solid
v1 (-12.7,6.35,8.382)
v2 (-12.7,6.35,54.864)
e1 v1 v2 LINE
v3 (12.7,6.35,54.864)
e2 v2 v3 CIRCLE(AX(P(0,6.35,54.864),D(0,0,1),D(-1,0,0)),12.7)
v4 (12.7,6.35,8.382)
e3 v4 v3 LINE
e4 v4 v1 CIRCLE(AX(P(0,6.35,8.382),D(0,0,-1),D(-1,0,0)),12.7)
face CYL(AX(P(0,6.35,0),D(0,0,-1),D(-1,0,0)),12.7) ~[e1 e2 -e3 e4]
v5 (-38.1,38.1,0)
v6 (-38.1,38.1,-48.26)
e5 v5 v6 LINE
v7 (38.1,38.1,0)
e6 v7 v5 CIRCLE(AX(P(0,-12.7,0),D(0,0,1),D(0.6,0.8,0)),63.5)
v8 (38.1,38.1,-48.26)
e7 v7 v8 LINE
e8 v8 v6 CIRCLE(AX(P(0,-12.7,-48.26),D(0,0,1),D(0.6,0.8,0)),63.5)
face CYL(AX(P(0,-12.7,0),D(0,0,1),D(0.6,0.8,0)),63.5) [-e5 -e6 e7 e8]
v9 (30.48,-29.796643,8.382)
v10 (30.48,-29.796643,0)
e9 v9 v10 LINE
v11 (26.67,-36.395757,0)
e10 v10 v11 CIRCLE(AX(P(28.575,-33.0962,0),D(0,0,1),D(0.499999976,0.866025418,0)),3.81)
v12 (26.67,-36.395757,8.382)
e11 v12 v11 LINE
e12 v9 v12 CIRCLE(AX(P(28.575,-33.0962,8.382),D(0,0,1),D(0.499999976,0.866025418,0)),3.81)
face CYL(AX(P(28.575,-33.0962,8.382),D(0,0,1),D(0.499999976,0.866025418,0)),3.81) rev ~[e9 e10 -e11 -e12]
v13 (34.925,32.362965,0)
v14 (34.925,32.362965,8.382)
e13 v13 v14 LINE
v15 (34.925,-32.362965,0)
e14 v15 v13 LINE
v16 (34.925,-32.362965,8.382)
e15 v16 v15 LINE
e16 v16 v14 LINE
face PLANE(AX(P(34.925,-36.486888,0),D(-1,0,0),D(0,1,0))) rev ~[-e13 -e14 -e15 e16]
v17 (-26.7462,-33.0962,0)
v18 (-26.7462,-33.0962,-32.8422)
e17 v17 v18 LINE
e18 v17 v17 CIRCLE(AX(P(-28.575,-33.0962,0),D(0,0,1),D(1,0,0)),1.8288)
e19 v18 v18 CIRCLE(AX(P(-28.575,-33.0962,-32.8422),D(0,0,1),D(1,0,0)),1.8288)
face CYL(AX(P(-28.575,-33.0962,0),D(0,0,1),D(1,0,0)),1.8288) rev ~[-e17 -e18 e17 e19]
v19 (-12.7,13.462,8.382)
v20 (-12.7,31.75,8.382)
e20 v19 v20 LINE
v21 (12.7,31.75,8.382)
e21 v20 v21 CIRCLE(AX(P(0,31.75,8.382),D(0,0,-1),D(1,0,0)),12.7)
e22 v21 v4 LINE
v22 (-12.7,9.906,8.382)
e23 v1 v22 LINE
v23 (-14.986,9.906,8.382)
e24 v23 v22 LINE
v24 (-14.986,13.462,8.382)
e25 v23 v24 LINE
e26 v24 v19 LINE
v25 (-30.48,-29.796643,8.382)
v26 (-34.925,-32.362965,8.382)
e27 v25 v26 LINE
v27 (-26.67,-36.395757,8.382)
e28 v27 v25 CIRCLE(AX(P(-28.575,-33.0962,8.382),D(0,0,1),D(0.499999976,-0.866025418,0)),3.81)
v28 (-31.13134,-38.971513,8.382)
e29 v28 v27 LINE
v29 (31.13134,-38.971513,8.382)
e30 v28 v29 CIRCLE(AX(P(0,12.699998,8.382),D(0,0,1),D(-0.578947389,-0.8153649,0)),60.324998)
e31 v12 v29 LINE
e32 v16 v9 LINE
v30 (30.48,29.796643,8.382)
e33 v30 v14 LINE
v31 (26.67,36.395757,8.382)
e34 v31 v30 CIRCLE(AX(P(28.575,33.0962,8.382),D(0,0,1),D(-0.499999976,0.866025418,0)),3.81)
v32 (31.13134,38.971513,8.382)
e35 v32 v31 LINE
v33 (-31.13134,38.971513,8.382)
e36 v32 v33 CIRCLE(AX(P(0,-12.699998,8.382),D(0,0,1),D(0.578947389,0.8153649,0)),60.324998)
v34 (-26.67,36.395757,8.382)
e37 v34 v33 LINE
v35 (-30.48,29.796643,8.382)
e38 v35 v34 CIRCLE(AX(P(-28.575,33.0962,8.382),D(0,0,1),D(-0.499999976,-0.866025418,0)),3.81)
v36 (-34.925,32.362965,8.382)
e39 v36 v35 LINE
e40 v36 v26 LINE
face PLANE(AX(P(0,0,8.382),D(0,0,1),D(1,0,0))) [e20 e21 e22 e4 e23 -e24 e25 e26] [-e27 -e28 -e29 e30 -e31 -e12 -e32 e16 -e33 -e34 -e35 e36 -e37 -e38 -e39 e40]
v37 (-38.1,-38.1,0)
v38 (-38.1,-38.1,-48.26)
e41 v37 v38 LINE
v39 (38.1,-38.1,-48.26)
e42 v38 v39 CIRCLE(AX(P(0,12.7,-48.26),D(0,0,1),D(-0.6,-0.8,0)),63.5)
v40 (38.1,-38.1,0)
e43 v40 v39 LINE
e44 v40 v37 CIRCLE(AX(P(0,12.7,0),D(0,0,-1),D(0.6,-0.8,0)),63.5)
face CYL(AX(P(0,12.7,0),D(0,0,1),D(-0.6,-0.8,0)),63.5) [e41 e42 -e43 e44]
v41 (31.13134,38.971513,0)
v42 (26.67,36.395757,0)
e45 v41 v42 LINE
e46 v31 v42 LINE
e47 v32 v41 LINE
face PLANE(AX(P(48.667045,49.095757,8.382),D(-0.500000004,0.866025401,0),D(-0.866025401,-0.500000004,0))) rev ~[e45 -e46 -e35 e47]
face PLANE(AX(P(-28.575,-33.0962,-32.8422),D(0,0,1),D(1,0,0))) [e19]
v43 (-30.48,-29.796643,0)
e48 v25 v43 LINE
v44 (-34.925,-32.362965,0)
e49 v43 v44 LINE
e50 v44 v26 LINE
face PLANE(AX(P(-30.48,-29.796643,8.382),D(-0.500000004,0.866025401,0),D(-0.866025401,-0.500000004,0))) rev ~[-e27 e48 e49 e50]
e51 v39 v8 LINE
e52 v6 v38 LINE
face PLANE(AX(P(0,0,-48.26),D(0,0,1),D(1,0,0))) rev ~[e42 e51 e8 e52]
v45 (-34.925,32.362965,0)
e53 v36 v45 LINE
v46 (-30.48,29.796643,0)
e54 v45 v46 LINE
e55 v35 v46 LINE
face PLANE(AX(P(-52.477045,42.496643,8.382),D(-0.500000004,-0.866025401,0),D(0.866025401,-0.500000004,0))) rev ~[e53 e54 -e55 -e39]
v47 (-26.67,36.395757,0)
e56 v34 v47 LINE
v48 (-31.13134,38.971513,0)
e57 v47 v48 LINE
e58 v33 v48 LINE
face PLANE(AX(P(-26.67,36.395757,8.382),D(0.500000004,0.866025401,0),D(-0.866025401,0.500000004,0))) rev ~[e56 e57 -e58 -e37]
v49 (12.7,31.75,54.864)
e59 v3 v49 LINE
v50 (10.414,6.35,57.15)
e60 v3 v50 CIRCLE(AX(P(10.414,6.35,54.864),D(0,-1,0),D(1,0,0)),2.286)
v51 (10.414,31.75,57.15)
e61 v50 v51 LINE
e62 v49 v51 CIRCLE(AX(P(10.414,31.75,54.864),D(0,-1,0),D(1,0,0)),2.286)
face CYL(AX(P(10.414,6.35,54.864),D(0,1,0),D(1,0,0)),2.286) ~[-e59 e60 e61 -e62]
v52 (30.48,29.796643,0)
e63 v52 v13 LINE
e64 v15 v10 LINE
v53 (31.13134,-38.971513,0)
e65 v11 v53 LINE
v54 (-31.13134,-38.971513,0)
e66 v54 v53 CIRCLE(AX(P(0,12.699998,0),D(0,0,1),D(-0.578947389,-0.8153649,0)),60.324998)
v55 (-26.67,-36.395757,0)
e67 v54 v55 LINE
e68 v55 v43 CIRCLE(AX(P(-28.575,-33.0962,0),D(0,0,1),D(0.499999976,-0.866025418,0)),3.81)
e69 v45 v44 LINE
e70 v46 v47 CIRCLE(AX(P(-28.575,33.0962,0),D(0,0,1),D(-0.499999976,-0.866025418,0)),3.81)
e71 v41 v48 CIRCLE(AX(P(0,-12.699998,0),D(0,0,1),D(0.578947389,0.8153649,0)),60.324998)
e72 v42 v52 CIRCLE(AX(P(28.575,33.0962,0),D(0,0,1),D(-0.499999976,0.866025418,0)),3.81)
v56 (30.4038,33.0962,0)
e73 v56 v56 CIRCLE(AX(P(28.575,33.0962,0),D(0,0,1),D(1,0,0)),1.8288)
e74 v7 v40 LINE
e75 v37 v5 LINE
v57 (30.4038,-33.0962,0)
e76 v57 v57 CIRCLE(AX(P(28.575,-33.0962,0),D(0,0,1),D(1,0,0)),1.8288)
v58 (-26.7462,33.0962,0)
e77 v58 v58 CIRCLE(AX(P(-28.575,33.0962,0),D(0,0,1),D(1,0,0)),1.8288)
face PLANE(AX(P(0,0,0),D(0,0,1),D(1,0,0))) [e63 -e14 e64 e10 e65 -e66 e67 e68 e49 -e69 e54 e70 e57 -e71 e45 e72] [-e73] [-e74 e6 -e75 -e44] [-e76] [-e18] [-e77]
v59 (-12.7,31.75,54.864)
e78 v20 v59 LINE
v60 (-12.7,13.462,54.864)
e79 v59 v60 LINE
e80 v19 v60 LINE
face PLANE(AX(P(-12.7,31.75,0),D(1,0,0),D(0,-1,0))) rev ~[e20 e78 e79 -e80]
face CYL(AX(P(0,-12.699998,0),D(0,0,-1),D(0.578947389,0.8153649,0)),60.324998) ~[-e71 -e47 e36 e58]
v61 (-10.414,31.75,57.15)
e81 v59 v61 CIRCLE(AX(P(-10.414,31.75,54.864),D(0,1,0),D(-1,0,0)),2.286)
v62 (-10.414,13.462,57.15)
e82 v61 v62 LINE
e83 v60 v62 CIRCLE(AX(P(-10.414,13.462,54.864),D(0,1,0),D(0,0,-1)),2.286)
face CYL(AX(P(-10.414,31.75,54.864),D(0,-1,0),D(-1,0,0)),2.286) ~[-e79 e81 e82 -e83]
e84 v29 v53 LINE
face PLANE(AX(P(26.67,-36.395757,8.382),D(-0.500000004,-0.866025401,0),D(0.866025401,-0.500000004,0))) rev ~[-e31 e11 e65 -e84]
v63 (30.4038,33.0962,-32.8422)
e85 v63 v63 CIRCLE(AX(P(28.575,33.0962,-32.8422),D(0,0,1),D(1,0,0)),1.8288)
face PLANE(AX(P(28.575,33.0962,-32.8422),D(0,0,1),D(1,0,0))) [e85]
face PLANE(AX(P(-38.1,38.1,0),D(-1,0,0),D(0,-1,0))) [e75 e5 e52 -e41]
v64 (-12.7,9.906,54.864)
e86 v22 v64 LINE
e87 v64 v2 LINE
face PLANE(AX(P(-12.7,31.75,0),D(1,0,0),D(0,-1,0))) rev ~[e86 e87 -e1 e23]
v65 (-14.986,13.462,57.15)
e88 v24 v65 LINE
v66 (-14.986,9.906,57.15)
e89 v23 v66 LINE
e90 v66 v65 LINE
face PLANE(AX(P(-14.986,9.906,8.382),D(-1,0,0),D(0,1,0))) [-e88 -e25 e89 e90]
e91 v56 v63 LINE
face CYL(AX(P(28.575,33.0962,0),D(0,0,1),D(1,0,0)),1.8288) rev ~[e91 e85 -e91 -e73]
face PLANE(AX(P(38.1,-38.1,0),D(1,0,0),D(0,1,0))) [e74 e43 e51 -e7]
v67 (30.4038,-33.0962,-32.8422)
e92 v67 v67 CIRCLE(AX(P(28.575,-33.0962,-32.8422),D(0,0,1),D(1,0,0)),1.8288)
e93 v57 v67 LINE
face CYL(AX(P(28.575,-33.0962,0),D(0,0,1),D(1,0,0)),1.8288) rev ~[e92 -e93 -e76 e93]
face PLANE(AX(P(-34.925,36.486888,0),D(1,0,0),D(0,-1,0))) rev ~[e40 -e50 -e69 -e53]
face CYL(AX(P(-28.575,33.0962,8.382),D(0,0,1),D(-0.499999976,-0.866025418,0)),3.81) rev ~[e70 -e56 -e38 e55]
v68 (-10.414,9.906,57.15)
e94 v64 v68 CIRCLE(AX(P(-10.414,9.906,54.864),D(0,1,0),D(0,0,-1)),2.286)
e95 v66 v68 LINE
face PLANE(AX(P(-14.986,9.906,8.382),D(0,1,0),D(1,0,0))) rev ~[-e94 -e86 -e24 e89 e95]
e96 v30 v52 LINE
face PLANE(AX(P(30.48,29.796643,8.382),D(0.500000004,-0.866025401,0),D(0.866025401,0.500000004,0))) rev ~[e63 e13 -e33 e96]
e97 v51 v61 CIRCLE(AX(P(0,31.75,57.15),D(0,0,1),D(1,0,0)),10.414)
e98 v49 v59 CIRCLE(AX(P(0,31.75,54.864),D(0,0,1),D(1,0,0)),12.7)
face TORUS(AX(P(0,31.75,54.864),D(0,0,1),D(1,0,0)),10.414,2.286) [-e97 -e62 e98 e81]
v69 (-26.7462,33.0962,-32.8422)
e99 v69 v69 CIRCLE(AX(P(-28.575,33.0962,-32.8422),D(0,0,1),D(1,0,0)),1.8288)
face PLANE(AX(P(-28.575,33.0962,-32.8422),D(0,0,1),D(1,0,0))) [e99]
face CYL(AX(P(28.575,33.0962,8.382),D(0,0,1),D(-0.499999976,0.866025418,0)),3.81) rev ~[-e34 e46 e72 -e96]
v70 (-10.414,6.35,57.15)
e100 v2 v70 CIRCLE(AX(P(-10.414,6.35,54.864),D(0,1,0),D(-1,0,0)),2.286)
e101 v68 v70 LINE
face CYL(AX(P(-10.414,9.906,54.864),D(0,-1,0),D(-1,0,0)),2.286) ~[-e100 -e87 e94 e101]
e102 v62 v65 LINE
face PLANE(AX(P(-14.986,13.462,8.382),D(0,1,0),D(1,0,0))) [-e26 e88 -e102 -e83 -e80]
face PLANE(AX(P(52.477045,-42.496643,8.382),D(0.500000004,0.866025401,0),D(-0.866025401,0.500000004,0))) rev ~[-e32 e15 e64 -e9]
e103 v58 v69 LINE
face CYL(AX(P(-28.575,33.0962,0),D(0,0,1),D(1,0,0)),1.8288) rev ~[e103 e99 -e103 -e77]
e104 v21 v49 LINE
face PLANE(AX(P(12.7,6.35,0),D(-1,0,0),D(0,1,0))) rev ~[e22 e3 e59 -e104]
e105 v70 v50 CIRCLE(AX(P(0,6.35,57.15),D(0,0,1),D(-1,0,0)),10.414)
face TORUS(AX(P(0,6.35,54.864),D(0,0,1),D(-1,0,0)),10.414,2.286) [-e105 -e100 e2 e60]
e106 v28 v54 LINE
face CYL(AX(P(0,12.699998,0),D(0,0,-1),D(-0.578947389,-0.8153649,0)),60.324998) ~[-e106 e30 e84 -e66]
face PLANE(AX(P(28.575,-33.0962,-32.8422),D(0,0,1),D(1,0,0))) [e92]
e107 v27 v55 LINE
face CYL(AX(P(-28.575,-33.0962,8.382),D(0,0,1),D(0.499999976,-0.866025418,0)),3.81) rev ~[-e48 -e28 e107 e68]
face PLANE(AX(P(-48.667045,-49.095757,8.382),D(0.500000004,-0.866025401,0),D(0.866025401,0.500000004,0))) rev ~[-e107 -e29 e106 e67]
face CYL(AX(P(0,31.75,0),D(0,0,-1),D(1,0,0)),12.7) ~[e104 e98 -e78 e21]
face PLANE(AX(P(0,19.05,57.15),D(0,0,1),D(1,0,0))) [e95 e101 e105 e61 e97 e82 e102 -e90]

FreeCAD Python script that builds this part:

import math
import FreeCAD as App
import Part
import Sketcher

V = App.Vector
Q = App.Units.Quantity


def edges_at(feature, points):
    """Names of the edges that pass closest to the given points."""
    edges = feature.Shape.Edges
    near = lambda p: min(range(len(edges)), key=lambda i: edges[i].distToShape(Part.Vertex(*p))[0])
    return sorted({f"Edge{near(p) + 1}" for p in points})

doc = App.newDocument("Part")
body = doc.addObject("PartDesign::Body", "Body")

sketch1 = body.newObject("Sketcher::SketchObject", "Sketch")
sketch1.AttachmentSupport = (doc.getObject("XY_Plane"), [""])
sketch1.MapMode = "FlatFace"
sketch1.addGeometry([
    Part.ArcOfCircle(Part.Circle(V(0, 13, 0), V(0, 0, 1), 64), math.radians(-127), math.radians(-53)),
    Part.LineSegment(V(38, -38, 0), V(38, 38, 0)),
    Part.ArcOfCircle(Part.Circle(V(0, -13, 0), V(0, 0, 1), 64), math.radians(53), math.radians(127)),
    Part.LineSegment(V(-38, 38, 0), V(-38, -38, 0)),
], False)
sketch1.addConstraint([
    Sketcher.Constraint("Coincident", 0, 2, 1, 1),
    Sketcher.Constraint("Coincident", 1, 2, 2, 1),
    Sketcher.Constraint("Coincident", 2, 2, 3, 1),
    Sketcher.Constraint("Coincident", 3, 2, 0, 1),
    Sketcher.Constraint("Vertical", 1),
    Sketcher.Constraint("Vertical", 3),
    Sketcher.Constraint("Equal", 0, 2),
    Sketcher.Constraint("Symmetric", 0, 3, 2, 3, -1, 1),
    Sketcher.Constraint("Symmetric", 1, 2, 2, 2, -2),
    Sketcher.Constraint("Radius", 0, Q("2.5 in")),
    Sketcher.Constraint("DistanceY", 1, 1, 1, 2, Q("3 in")),
    Sketcher.Constraint("DistanceY", 2, 3, 0, 3, Q("1 in")),
])
pad1 = body.newObject("PartDesign::Pad", "Pad")
pad1.Profile = sketch1
pad1.Length = Q("1.9 in")
pad1.Reversed = True

sketch2 = body.newObject("Sketcher::SketchObject", "Sketch001")
sketch2.AttachmentSupport = (doc.getObject("XY_Plane"), [""])
sketch2.MapMode = "FlatFace"
sketch2.addGeometry([
    Part.LineSegment(V(-35, 36, 0), V(-35, -36, 0)),
    Part.ArcOfCircle(Part.Circle(V(0, 13, 0), V(0, 0, 1), 60), math.radians(-125), math.radians(-55)),
    Part.LineSegment(V(35, -36, 0), V(35, 36, 0)),
    Part.ArcOfCircle(Part.Circle(V(0, -13, 0), V(0, 0, 1), 60), math.radians(55), math.radians(125)),
], False)
sketch2.addConstraint([
    Sketcher.Constraint("Coincident", 0, 2, 1, 1),
    Sketcher.Constraint("Coincident", 1, 2, 2, 1),
    Sketcher.Constraint("Coincident", 2, 2, 3, 1),
    Sketcher.Constraint("Coincident", 3, 2, 0, 1),
    Sketcher.Constraint("Vertical", 0),
    Sketcher.Constraint("Vertical", 2),
    Sketcher.Constraint("Equal", 1, 3),
    Sketcher.Constraint("Symmetric", 1, 3, 3, 3, -1, 1),
    Sketcher.Constraint("Symmetric", 0, 2, 1, 2, -2),
    Sketcher.Constraint("Radius", 1, Q("2.3749999 in")),
    Sketcher.Constraint("DistanceY", 3, 3, 1, 3, Q("0.9999998 in")),
    Sketcher.Constraint("DistanceX", 0, 2, 1, 2, Q("2.75 in")),
])
pad2 = body.newObject("PartDesign::Pad", "Pad001")
pad2.Profile = sketch2
pad2.Length = Q("0.33 in")

sketch3 = body.newObject("Sketcher::SketchObject", "Sketch002")
sketch3.AttachmentSupport = (doc.getObject("XY_Plane"), [""])
sketch3.MapMode = "FlatFace"
sketch3.AttachmentOffset = App.Placement(V(0, 0, 0.33 * 25.4), App.Rotation())
sketch3.addGeometry([
    Part.ArcOfCircle(Part.Circle(V(-28.6, -33.1, 0), V(0, 0, 1), 3.8), math.radians(-60), math.radians(120)),
    Part.LineSegment(V(-30.5, -29.8, 0), V(-52.5, -42.5, 0)),
    Part.ArcOfCircle(Part.Circle(V(-50.6, -45.8, 0), V(0, 0, 1), 3.8), math.radians(120), math.radians(300)),
    Part.LineSegment(V(-48.7, -49.1, 0), V(-26.7, -36.4, 0)),
    Part.LineSegment(V(52.5, -42.5, 0), V(30.5, -29.8, 0)),
    Part.ArcOfCircle(Part.Circle(V(28.6, -33.1, 0), V(0, 0, 1), 3.8), math.radians(60), math.radians(240)),
    Part.LineSegment(V(26.7, -36.4, 0), V(48.7, -49.1, 0)),
    Part.ArcOfCircle(Part.Circle(V(50.6, -45.8, 0), V(0, 0, 1), 3.8), math.radians(-120), math.radians(60)),
    Part.LineSegment(V(-52.5, 42.5, 0), V(-30.5, 29.8, 0)),
    Part.ArcOfCircle(Part.Circle(V(-28.6, 33.1, 0), V(0, 0, 1), 3.8), math.radians(-120), math.radians(60)),
    Part.LineSegment(V(-26.7, 36.4, 0), V(-48.7, 49.1, 0)),
    Part.ArcOfCircle(Part.Circle(V(-50.6, 45.8, 0), V(0, 0, 1), 3.8), math.radians(60), math.radians(240)),
    Part.ArcOfCircle(Part.Circle(V(28.6, 33.1, 0), V(0, 0, 1), 3.8), math.radians(120), math.radians(300)),
    Part.LineSegment(V(30.5, 29.8, 0), V(52.5, 42.5, 0)),
    Part.ArcOfCircle(Part.Circle(V(50.6, 45.8, 0), V(0, 0, 1), 3.8), math.radians(-60), math.radians(120)),
    Part.LineSegment(V(48.7, 49.1, 0), V(26.7, 36.4, 0)),
], False)
sketch3.addConstraint([
    Sketcher.Constraint("Tangent", 0, 2, 1, 1),
    Sketcher.Constraint("Tangent", 1, 2, 2, 1),
    Sketcher.Constraint("Tangent", 2, 2, 3, 1),
    Sketcher.Constraint("Tangent", 3, 2, 0, 1),
    Sketcher.Constraint("Tangent", 4, 2, 5, 1),
    Sketcher.Constraint("Tangent", 5, 2, 6, 1),
    Sketcher.Constraint("Tangent", 6, 2, 7, 1),
    Sketcher.Constraint("Tangent", 7, 2, 4, 1),
    Sketcher.Constraint("Tangent", 8, 2, 9, 1),
    Sketcher.Constraint("Tangent", 9, 2, 10, 1),
    Sketcher.Constraint("Tangent", 10, 2, 11, 1),
    Sketcher.Constraint("Tangent", 11, 2, 8, 1),
    Sketcher.Constraint("Tangent", 12, 2, 13, 1),
    Sketcher.Constraint("Tangent", 13, 2, 14, 1),
    Sketcher.Constraint("Tangent", 14, 2, 15, 1),
    Sketcher.Constraint("Tangent", 15, 2, 12, 1),
    Sketcher.Constraint("Equal", 0, 2),
    Sketcher.Constraint("Equal", 2, 5),
    Sketcher.Constraint("Equal", 5, 7),
    Sketcher.Constraint("Equal", 7, 9),
    Sketcher.Constraint("Equal", 9, 11),
    Sketcher.Constraint("Equal", 11, 12),
    Sketcher.Constraint("Equal", 12, 14),
    Sketcher.Constraint("Symmetric", 5, 3, 9, 3, -1, 1),
    Sketcher.Constraint("Symmetric", 7, 3, 11, 3, -1, 1),
    Sketcher.Constraint("Symmetric", 0, 3, 12, 3, -1, 1),
    Sketcher.Constraint("Symmetric", 2, 3, 14, 3, -1, 1),
    Sketcher.Constraint("Symmetric", 0, 3, 5, 3, -2),
    Sketcher.Constraint("Symmetric", 2, 3, 7, 3, -2),
    Sketcher.Constraint("Radius", 0, Q("0.15 in")),
    Sketcher.Constraint("Distance", 1, Q("1 in")),
    Sketcher.Constraint("Angle", 1, Q("-150 deg")),
    Sketcher.Constraint("DistanceX", 0, 2, -1, 1, Q("1.2 in")),
    Sketcher.Constraint("DistanceY", 0, 3, -1, 1, Q("1.303 in")),
])
pocket1 = body.newObject("PartDesign::Pocket", "Pocket")
pocket1.Profile = sketch3
pocket1.Length = Q("0.33 in")

sketch4 = body.newObject("Sketcher::SketchObject", "Sketch003")
sketch4.AttachmentSupport = (doc.getObject("XY_Plane"), [""])
sketch4.MapMode = "FlatFace"
sketch4.addGeometry([
    Part.Circle(V(-28.6, 33.1, 0), V(0, 0, 1), 1.8),
    Part.Circle(V(28.6, 33.1, 0), V(0, 0, 1), 1.8),
    Part.Circle(V(28.6, -33.1, 0), V(0, 0, 1), 1.8),
    Part.Circle(V(-28.6, -33.1, 0), V(0, 0, 1), 1.8),
], False)
sketch4.addConstraint([
    Sketcher.Constraint("Equal", 0, 1),
    Sketcher.Constraint("Equal", 1, 2),
    Sketcher.Constraint("Equal", 2, 3),
    Sketcher.Constraint("Symmetric", 0, 3, 2, 3, -1, 1),
    Sketcher.Constraint("Symmetric", 1, 3, 3, 3, -1, 1),
    Sketcher.Constraint("Symmetric", 0, 3, 1, 3, -2),
    Sketcher.Constraint("Diameter", 0, Q("0.144 in")),
    Sketcher.Constraint("DistanceX", 0, 3, 1, 3, Q("2.25 in")),
    Sketcher.Constraint("DistanceY", -1, 1, 0, 3, Q("1.303 in")),
])
pocket2 = body.newObject("PartDesign::Pocket", "Pocket001")
pocket2.Profile = sketch4
pocket2.Length = Q("1.293 in")

sketch5 = body.newObject("Sketcher::SketchObject", "Sketch004")
sketch5.AttachmentSupport = (doc.getObject("XY_Plane"), [""])
sketch5.MapMode = "FlatFace"
sketch5.addGeometry([
    Part.Circle(V(-28.6, 33.1, 0), V(0, 0, 1), 1.8),
    Part.Circle(V(28.6, 33.1, 0), V(0, 0, 1), 1.8),
    Part.Circle(V(28.6, -33.1, 0), V(0, 0, 1), 1.8),
    Part.Circle(V(-28.6, -33.1, 0), V(0, 0, 1), 1.8),
], False)
sketch5.addConstraint([
    Sketcher.Constraint("Equal", 0, 1),
    Sketcher.Constraint("Equal", 1, 2),
    Sketcher.Constraint("Equal", 2, 3),
    Sketcher.Constraint("Symmetric", 0, 3, 2, 3, -1, 1),
    Sketcher.Constraint("Symmetric", 1, 3, 3, 3, -1, 1),
    Sketcher.Constraint("Symmetric", 0, 3, 1, 3, -2),
    Sketcher.Constraint("Diameter", 0, Q("0.144 in")),
    Sketcher.Constraint("DistanceX", 0, 3, 1, 3, Q("2.25 in")),
    Sketcher.Constraint("DistanceY", -1, 1, 0, 3, Q("1.303 in")),
])
pocket3 = body.newObject("PartDesign::Pocket", "Pocket002")
pocket3.Profile = sketch5
pocket3.Length = Q("1.293 in")

sketch6 = body.newObject("Sketcher::SketchObject", "Sketch005")
sketch6.AttachmentSupport = (doc.getObject("XY_Plane"), [""])
sketch6.MapMode = "FlatFace"
sketch6.addGeometry([
    Part.ArcOfCircle(Part.Circle(V(0, 6, 0), V(0, 0, 1), 13), math.radians(180), math.radians(360)),
    Part.LineSegment(V(13, 6, 0), V(13, 32, 0)),
    Part.ArcOfCircle(Part.Circle(V(0, 32, 0), V(0, 0, 1), 13), math.radians(0), math.radians(180)),
    Part.LineSegment(V(-13, 32, 0), V(-13, 6, 0)),
], False)
sketch6.addConstraint([
    Sketcher.Constraint("Tangent", 0, 2, 1, 1),
    Sketcher.Constraint("Tangent", 1, 2, 2, 1),
    Sketcher.Constraint("Tangent", 2, 2, 3, 1),
    Sketcher.Constraint("Tangent", 3, 2, 0, 1),
    Sketcher.Constraint("Vertical", 1),
    Sketcher.Constraint("Vertical", 3),
    Sketcher.Constraint("PointOnObject", 0, 3, -2),
    Sketcher.Constraint("Radius", 0, Q("0.5 in")),
    Sketcher.Constraint("DistanceY", 1, 1, 1, 2, Q("1 in")),
    Sketcher.Constraint("DistanceY", -1, 1, 0, 3, Q("0.25 in")),
])
pad3 = body.newObject("PartDesign::Pad", "Pad002")
pad3.Profile = sketch6
pad3.Length = Q("2.25 in")

sketch7 = body.newObject("Sketcher::SketchObject", "Sketch006")
sketch7.AttachmentSupport = (doc.getObject("XY_Plane"), [""])
sketch7.MapMode = "FlatFace"
sketch7.AttachmentOffset = App.Placement(V(0, 0, 0.33 * 25.4), App.Rotation())
sketch7.addGeometry([
    Part.LineSegment(V(-15, 13.5, 0), V(-15, 9.9, 0)),
    Part.LineSegment(V(-15, 9.9, 0), V(-12.7, 9.9, 0)),
    Part.LineSegment(V(-12.7, 9.9, 0), V(-12.7, 13.5, 0)),
    Part.LineSegment(V(-12.7, 13.5, 0), V(-15, 13.5, 0)),
], False)
sketch7.addConstraint([
    Sketcher.Constraint("Coincident", 0, 2, 1, 1),
    Sketcher.Constraint("Coincident", 1, 2, 2, 1),
    Sketcher.Constraint("Coincident", 2, 2, 3, 1),
    Sketcher.Constraint("Coincident", 3, 2, 0, 1),
    Sketcher.Constraint("Vertical", 0),
    Sketcher.Constraint("Horizontal", 1),
    Sketcher.Constraint("Vertical", 2),
    Sketcher.Constraint("Horizontal", 3),
    Sketcher.Constraint("DistanceX", 1, 1, 1, 2, Q("0.09 in")),
    Sketcher.Constraint("DistanceY", 0, 2, 0, 1, Q("0.14 in")),
    Sketcher.Constraint("DistanceX", 1, 2, -1, 1, Q("0.5 in")),
    Sketcher.Constraint("DistanceY", -1, 1, 0, 2, Q("0.39 in")),
])
pad4 = body.newObject("PartDesign::Pad", "Pad003")
pad4.Profile = sketch7
pad4.Length = Q("1.92 in")
doc.recompute()

fillet = body.newObject("PartDesign::Fillet", "Fillet")
fillet.Base = (pad4, edges_at(pad4, [(12.7, 19.05, 57.15)]))
fillet.Radius = Q("0.09 in")

doc.recompute()
